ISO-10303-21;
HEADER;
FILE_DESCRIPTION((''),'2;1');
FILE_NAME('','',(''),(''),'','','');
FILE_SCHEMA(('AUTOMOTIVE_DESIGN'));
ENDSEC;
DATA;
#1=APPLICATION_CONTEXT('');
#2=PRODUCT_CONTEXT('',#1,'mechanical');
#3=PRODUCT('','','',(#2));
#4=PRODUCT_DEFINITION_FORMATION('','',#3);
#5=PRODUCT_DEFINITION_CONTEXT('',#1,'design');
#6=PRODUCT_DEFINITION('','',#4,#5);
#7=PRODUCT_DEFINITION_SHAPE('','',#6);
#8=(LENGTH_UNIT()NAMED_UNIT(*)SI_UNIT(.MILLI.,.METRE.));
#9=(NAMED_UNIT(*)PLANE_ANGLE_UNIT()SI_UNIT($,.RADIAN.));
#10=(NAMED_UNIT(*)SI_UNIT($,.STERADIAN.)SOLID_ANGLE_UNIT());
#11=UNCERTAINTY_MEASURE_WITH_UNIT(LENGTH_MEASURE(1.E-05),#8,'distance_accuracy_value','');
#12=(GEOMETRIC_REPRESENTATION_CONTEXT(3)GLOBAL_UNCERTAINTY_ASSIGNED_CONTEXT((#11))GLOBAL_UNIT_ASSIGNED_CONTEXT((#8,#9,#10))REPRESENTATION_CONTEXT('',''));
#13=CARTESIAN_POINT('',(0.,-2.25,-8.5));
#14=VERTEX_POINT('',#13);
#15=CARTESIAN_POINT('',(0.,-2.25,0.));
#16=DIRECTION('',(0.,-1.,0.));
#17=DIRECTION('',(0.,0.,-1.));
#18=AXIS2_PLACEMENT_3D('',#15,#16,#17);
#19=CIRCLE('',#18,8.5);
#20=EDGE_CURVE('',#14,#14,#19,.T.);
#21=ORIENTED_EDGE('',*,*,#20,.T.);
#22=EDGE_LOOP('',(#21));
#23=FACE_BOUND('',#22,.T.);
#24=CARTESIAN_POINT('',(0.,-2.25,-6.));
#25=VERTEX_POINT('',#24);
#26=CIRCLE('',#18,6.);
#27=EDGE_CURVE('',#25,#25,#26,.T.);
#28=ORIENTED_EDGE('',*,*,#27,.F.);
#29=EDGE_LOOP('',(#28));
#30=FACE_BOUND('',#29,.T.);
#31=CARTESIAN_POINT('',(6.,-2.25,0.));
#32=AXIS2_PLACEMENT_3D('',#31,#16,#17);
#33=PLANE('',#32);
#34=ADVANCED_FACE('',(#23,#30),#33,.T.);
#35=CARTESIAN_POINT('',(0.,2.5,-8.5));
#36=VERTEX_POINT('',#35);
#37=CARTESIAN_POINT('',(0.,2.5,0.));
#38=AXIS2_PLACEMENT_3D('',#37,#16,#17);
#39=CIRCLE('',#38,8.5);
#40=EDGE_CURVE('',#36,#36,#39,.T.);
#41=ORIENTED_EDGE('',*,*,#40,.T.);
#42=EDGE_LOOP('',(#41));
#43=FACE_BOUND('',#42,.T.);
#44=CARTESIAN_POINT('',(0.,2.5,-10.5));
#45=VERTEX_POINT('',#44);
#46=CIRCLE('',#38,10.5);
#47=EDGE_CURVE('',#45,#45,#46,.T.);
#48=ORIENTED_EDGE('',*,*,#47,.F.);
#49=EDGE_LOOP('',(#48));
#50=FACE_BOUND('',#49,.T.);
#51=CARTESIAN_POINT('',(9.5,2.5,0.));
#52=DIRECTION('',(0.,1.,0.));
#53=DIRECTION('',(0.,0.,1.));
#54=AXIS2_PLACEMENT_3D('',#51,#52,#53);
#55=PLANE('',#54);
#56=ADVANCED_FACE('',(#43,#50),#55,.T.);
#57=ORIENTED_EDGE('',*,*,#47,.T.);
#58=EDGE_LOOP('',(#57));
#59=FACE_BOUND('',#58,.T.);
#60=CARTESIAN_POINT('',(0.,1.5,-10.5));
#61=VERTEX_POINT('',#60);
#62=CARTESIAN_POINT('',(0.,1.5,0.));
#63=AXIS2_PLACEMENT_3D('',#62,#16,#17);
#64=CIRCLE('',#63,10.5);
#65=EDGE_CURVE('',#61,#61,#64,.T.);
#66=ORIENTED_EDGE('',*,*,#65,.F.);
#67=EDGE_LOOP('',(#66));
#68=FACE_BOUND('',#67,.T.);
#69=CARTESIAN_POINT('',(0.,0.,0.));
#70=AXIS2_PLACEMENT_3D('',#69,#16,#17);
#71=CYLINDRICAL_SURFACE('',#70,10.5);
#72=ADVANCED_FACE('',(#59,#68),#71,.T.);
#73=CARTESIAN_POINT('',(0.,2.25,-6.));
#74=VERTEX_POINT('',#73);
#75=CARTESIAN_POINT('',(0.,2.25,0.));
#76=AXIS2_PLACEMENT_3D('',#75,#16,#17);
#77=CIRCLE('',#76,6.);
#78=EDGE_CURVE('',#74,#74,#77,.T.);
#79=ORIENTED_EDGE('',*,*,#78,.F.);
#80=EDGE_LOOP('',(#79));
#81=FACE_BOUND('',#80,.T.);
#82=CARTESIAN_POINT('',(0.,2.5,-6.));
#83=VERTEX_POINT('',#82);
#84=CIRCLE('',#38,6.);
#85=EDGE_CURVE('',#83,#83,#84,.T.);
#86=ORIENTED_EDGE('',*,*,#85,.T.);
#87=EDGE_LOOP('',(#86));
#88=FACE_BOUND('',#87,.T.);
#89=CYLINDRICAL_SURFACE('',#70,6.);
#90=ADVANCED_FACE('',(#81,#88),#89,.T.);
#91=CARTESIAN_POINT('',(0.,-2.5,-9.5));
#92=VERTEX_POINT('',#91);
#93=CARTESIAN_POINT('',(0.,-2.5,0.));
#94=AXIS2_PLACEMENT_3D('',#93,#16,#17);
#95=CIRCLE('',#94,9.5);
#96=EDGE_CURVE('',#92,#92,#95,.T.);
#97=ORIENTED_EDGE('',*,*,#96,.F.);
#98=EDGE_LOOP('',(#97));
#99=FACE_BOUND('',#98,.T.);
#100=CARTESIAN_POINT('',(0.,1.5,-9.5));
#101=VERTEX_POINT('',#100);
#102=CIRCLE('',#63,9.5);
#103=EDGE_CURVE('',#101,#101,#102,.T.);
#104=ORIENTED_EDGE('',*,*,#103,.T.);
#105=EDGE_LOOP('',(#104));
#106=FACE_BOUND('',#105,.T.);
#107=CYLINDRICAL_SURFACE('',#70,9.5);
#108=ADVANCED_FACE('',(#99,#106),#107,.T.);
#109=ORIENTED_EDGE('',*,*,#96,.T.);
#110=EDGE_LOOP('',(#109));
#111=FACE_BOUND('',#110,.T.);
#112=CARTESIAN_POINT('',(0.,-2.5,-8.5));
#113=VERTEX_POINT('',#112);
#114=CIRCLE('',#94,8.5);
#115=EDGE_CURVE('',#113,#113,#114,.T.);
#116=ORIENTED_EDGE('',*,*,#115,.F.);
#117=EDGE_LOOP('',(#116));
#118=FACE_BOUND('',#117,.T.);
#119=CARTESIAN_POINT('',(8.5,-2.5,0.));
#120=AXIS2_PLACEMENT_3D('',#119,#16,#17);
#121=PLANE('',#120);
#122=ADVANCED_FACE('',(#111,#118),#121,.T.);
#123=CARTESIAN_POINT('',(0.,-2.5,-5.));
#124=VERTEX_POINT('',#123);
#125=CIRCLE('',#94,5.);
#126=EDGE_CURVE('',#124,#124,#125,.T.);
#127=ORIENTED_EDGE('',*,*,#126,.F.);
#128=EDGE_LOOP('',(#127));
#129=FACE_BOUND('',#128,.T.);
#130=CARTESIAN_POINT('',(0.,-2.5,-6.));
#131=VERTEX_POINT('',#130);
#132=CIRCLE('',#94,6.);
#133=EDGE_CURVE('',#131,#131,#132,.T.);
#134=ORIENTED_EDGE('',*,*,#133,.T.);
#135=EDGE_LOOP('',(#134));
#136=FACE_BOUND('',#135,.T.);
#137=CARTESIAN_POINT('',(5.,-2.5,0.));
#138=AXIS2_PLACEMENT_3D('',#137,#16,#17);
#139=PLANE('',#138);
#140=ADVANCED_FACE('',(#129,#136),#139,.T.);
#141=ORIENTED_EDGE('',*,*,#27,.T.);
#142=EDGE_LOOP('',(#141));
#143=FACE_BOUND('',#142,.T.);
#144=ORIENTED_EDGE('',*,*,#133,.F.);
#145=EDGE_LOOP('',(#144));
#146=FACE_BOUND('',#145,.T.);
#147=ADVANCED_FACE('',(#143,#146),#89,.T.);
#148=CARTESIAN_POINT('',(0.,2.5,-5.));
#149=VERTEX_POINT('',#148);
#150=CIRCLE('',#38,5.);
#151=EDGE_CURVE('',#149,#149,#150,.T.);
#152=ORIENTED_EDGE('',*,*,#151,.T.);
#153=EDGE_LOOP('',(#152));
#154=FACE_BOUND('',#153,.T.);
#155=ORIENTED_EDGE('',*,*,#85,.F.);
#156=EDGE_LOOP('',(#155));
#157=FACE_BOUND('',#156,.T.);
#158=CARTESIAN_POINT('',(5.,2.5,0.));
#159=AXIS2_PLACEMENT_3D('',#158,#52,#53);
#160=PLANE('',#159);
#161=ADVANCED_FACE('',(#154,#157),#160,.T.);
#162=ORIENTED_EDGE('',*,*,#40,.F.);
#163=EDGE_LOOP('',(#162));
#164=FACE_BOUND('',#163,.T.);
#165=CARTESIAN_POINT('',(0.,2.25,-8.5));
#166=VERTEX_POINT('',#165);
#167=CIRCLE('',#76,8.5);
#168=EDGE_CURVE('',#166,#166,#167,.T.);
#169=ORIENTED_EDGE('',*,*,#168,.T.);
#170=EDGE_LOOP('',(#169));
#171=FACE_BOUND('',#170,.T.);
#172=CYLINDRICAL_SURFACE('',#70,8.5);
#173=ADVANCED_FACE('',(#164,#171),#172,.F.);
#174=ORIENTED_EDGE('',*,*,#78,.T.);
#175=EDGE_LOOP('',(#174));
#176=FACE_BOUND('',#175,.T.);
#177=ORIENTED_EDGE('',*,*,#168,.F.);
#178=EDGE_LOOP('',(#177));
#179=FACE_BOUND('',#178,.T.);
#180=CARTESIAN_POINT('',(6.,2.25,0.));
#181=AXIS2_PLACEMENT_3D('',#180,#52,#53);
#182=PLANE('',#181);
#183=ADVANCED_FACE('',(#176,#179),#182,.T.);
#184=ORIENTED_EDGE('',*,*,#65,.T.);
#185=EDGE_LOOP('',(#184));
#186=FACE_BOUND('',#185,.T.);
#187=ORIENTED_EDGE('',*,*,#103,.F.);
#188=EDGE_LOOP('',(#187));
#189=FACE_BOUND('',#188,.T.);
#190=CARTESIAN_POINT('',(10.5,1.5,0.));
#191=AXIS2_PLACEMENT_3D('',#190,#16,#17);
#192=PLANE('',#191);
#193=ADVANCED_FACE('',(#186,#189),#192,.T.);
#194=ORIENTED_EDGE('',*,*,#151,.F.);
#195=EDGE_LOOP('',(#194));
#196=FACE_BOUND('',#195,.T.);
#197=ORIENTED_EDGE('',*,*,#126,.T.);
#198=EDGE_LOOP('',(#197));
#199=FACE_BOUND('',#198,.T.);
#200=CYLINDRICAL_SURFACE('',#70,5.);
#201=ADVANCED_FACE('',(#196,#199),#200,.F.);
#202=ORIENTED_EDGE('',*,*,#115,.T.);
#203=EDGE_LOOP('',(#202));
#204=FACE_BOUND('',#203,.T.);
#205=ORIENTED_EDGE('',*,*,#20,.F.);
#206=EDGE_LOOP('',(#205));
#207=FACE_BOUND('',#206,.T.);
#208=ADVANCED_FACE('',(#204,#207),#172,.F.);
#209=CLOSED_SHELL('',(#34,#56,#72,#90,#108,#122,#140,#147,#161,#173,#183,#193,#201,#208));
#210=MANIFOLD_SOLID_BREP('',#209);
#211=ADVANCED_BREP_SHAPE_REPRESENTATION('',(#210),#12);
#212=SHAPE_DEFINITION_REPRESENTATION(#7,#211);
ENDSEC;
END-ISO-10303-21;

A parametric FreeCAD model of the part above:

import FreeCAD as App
import Part
import Sketcher


def add_polygon(sketch, points):
    """Adds a closed chain of lines whose ends are joined by coincident constraints."""
    first, n = sketch.GeometryCount, len(points)
    for a, b in zip(points, points[1:] + points[:1]):
        sketch.addGeometry(Part.LineSegment(App.Vector(*a, 0), App.Vector(*b, 0)), False)
    for i in range(n):
        sketch.addConstraint(Sketcher.Constraint("Coincident", first + i, 2, first + (i + 1) % n, 1))

doc = App.newDocument("Part")
body = doc.addObject("PartDesign::Body", "Body")

sketch1 = body.newObject("Sketcher::SketchObject", "Sketch")
sketch1.AttachmentSupport = (doc.getObject("XY_Plane"), [""])
sketch1.MapMode = "FlatFace"
add_polygon(sketch1, [(5, 2.5), (5, -2.5), (6, -2.5), (6, -2.25), (8.5, -2.25), (8.5, -2.5), (9.5, -2.5), (9.5, 1.5), (10.5, 1.5), (10.5, 2.5), (8.5, 2.5), (8.5, 2.25), (6, 2.25), (6, 2.5)])
sketch1.addConstraint([
    Sketcher.Constraint("Vertical", 0),
    Sketcher.Constraint("Horizontal", 1),
    Sketcher.Constraint("Vertical", 2),
    Sketcher.Constraint("Horizontal", 3),
    Sketcher.Constraint("Vertical", 4),
    Sketcher.Constraint("Horizontal", 5),
    Sketcher.Constraint("Vertical", 6),
    Sketcher.Constraint("Horizontal", 7),
    Sketcher.Constraint("Vertical", 8),
    Sketcher.Constraint("Horizontal", 9),
    Sketcher.Constraint("Vertical", 10),
    Sketcher.Constraint("Horizontal", 11),
    Sketcher.Constraint("Vertical", 12),
    Sketcher.Constraint("Horizontal", 13),
    Sketcher.Constraint("Symmetric", 4, 2, 9, 2, -1),
    Sketcher.Constraint("Symmetric", 2, 2, 11, 2, -1),
    Sketcher.Constraint("Horizontal", 1, 2, 4, 2),
    Sketcher.Constraint("Horizontal", 9, 2, 12, 2),
    Sketcher.Constraint("Equal", 1, 5),
    Sketcher.Constraint("Equal", 5, 7),
    Sketcher.Constraint("Equal", 13, 8),
    Sketcher.Constraint("DistanceX", 1, 1, 1, 2, 1.0),
    Sketcher.Constraint("DistanceY", 0, 2, 0, 1, 5.0),
    Sketcher.Constraint("DistanceX", 3, 1, 3, 2, 2.5),
    Sketcher.Constraint("DistanceX", -1, 1, 0, 2, 5.0),
    Sketcher.Constraint("DistanceY", 2, 1, 2, 2, 0.25),
])
revolution = body.newObject("PartDesign::Revolution", "Revolution")
revolution.Profile = sketch1
revolution.ReferenceAxis = (sketch1, ["V_Axis"])
revolution.Angle = 360

doc.recompute()
